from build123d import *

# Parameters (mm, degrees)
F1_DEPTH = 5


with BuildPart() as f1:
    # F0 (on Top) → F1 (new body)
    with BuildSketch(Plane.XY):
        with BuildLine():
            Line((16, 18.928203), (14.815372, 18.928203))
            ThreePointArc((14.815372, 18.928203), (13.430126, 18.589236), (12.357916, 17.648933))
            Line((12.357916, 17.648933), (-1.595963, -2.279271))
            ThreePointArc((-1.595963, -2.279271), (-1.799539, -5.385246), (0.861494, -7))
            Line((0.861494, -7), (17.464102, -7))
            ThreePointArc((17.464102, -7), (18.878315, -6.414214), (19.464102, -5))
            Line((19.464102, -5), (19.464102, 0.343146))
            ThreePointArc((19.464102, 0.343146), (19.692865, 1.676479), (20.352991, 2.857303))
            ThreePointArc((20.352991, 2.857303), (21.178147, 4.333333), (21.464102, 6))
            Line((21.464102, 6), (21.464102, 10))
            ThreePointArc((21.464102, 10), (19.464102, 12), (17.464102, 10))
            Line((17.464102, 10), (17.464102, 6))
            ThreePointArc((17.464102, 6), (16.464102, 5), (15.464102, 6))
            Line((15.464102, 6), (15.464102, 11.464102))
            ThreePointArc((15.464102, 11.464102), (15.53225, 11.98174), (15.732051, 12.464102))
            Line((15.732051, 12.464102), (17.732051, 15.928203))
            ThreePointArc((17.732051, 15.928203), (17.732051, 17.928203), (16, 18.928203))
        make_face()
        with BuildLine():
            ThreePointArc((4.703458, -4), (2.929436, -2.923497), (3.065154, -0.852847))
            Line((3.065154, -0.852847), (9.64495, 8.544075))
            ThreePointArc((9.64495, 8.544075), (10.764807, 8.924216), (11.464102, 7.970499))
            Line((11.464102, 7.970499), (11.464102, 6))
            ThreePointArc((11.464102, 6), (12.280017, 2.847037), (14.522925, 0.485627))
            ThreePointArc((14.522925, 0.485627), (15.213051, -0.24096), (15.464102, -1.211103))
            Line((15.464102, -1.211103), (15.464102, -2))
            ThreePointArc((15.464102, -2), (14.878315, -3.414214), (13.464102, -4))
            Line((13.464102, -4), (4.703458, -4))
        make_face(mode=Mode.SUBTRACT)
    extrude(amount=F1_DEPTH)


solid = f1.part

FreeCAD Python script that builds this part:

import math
import FreeCAD as App
import Part
import Sketcher
Q = App.Units.Quantity

doc = App.newDocument("Part")
body = doc.addObject("PartDesign::Body", "Body")

# Sketch on XY plane
sketch1 = body.newObject("Sketcher::SketchObject", "Sketch")
sketch1.AttachmentSupport = (doc.getObject("XY_Plane"), [""])
sketch1.MapMode = "FlatFace"
sketch1.addGeometry(Part.LineSegment(App.Vector(16, 18.9, 0), App.Vector(14.8, 18.9, 0)), False)
sketch1.addGeometry(Part.ArcOfCircle(Part.Circle(App.Vector(14.8, 15.9, 0), App.Vector(0, 0, 1), 3), math.radians(90), math.radians(145)), False)
sketch1.addGeometry(Part.LineSegment(App.Vector(12.4, 17.6, 0), App.Vector(-1.6, -2.3, 0)), False)
sketch1.addGeometry(Part.ArcOfCircle(Part.Circle(App.Vector(0.9, -4, 0), App.Vector(0, 0, 1), 3), math.radians(145), math.radians(270)), False)
sketch1.addGeometry(Part.LineSegment(App.Vector(0.9, -7, 0), App.Vector(17.5, -7, 0)), False)
sketch1.addGeometry(Part.ArcOfCircle(Part.Circle(App.Vector(17.5, -5, 0), App.Vector(0, 0, 1), 2), math.radians(-90), math.radians(0)), False)
sketch1.addGeometry(Part.LineSegment(App.Vector(19.5, -5, 0), App.Vector(19.5, 0.3, 0)), False)
sketch1.addGeometry(Part.ArcOfCircle(Part.Circle(App.Vector(23.5, 0.3, 0), App.Vector(0, 0, 1), 4), math.radians(141), math.radians(180)), False)
sketch1.addGeometry(Part.ArcOfCircle(Part.Circle(App.Vector(16.5, 6, 0), App.Vector(0, 0, 1), 5), math.radians(-39), math.radians(0)), False)
sketch1.addGeometry(Part.LineSegment(App.Vector(21.5, 6, 0), App.Vector(21.5, 10, 0)), False)
sketch1.addGeometry(Part.ArcOfCircle(Part.Circle(App.Vector(19.5, 10, 0), App.Vector(0, 0, 1), 2), math.radians(0), math.radians(180)), False)
sketch1.addGeometry(Part.LineSegment(App.Vector(17.5, 10, 0), App.Vector(17.5, 6, 0)), False)
sketch1.addGeometry(Part.ArcOfCircle(Part.Circle(App.Vector(16.5, 6, 0), App.Vector(0, 0, 1), 1), math.radians(180), math.radians(360)), False)
sketch1.addGeometry(Part.LineSegment(App.Vector(15.5, 6, 0), App.Vector(15.5, 11.5, 0)), False)
sketch1.addGeometry(Part.ArcOfCircle(Part.Circle(App.Vector(17.5, 11.5, 0), App.Vector(0, 0, 1), 2), math.radians(150), math.radians(180)), False)
sketch1.addGeometry(Part.LineSegment(App.Vector(15.7, 12.5, 0), App.Vector(17.7, 15.9, 0)), False)
sketch1.addGeometry(Part.ArcOfCircle(Part.Circle(App.Vector(16, 16.9, 0), App.Vector(0, 0, 1), 2), math.radians(-30), math.radians(90)), False)
sketch1.addGeometry(Part.LineSegment(App.Vector(13.5, -4, 0), App.Vector(4.7, -4, 0)), False)
sketch1.addGeometry(Part.ArcOfCircle(Part.Circle(App.Vector(4.7, -2, 0), App.Vector(0, 0, 1), 2), math.radians(145), math.radians(270)), False)
sketch1.addGeometry(Part.LineSegment(App.Vector(3.1, -0.9, 0), App.Vector(9.6, 8.5, 0)), False)
sketch1.addGeometry(Part.ArcOfCircle(Part.Circle(App.Vector(10.5, 8, 0), App.Vector(0, 0, 1), 1), math.radians(0), math.radians(145)), False)
sketch1.addGeometry(Part.LineSegment(App.Vector(11.5, 8, 0), App.Vector(11.5, 6, 0)), False)
sketch1.addGeometry(Part.ArcOfCircle(Part.Circle(App.Vector(18, 6, 0), App.Vector(0, 0, 1), 6.5), math.radians(-180), math.radians(-122)), False)
sketch1.addGeometry(Part.ArcOfCircle(Part.Circle(App.Vector(13.5, -1.2, 0), App.Vector(0, 0, 1), 2), math.radians(0), math.radians(58)), False)
sketch1.addGeometry(Part.LineSegment(App.Vector(15.5, -1.2, 0), App.Vector(15.5, -2, 0)), False)
sketch1.addGeometry(Part.ArcOfCircle(Part.Circle(App.Vector(13.5, -2, 0), App.Vector(0, 0, 1), 2), math.radians(-90), math.radians(0)), False)
sketch1.addConstraint(Sketcher.Constraint("Tangent", 0, 2, 1, 1))
sketch1.addConstraint(Sketcher.Constraint("Tangent", 1, 2, 2, 1))
sketch1.addConstraint(Sketcher.Constraint("Tangent", 2, 2, 3, 1))
sketch1.addConstraint(Sketcher.Constraint("Tangent", 3, 2, 4, 1))
sketch1.addConstraint(Sketcher.Constraint("Tangent", 4, 2, 5, 1))
sketch1.addConstraint(Sketcher.Constraint("Tangent", 5, 2, 6, 1))
sketch1.addConstraint(Sketcher.Constraint("Tangent", 6, 2, 7, 2))
sketch1.addConstraint(Sketcher.Constraint("Tangent", 7, 1, 8, 1))
sketch1.addConstraint(Sketcher.Constraint("Tangent", 8, 2, 9, 1))
sketch1.addConstraint(Sketcher.Constraint("Tangent", 9, 2, 10, 1))
sketch1.addConstraint(Sketcher.Constraint("Tangent", 10, 2, 11, 1))
sketch1.addConstraint(Sketcher.Constraint("Tangent", 11, 2, 12, 2))
sketch1.addConstraint(Sketcher.Constraint("Tangent", 12, 1, 13, 1))
sketch1.addConstraint(Sketcher.Constraint("Tangent", 13, 2, 14, 2))
sketch1.addConstraint(Sketcher.Constraint("Tangent", 14, 1, 15, 1))
sketch1.addConstraint(Sketcher.Constraint("Tangent", 15, 2, 16, 1))
sketch1.addConstraint(Sketcher.Constraint("Tangent", 16, 2, 0, 1))
sketch1.addConstraint(Sketcher.Constraint("Tangent", 17, 2, 18, 2))
sketch1.addConstraint(Sketcher.Constraint("Tangent", 18, 1, 19, 1))
sketch1.addConstraint(Sketcher.Constraint("Tangent", 19, 2, 20, 2))
sketch1.addConstraint(Sketcher.Constraint("Tangent", 20, 1, 21, 1))
sketch1.addConstraint(Sketcher.Constraint("Tangent", 21, 2, 22, 1))
sketch1.addConstraint(Sketcher.Constraint("Tangent", 22, 2, 23, 2))
sketch1.addConstraint(Sketcher.Constraint("Tangent", 23, 1, 24, 1))
sketch1.addConstraint(Sketcher.Constraint("Tangent", 24, 2, 25, 2))
sketch1.addConstraint(Sketcher.Constraint("Tangent", 25, 1, 17, 1))
sketch1.addConstraint(Sketcher.Constraint("Horizontal", 0))
sketch1.addConstraint(Sketcher.Constraint("Horizontal", 4))
sketch1.addConstraint(Sketcher.Constraint("Vertical", 6))
sketch1.addConstraint(Sketcher.Constraint("Vertical", 9))
sketch1.addConstraint(Sketcher.Constraint("Vertical", 11))
sketch1.addConstraint(Sketcher.Constraint("Vertical", 13))
sketch1.addConstraint(Sketcher.Constraint("Horizontal", 17))
sketch1.addConstraint(Sketcher.Constraint("Vertical", 21))
sketch1.addConstraint(Sketcher.Constraint("Vertical", 24))
sketch1.addConstraint(Sketcher.Constraint("Coincident", 12, 3, 8, 3))
sketch1.addConstraint(Sketcher.Constraint("Equal", 5, 10))
sketch1.addConstraint(Sketcher.Constraint("Equal", 10, 16))
sketch1.addConstraint(Sketcher.Constraint("Equal", 16, 18))
sketch1.addConstraint(Sketcher.Constraint("Equal", 12, 20))
sketch1.addConstraint(Sketcher.Constraint("Equal", 18, 23))
sketch1.addConstraint(Sketcher.Constraint("Equal", 23, 25))
sketch1.addConstraint(Sketcher.Constraint("Parallel", 2, 19))
sketch1.addConstraint(Sketcher.Constraint("Horizontal", 12, 3, 22, 3))
sketch1.addConstraint(Sketcher.Constraint("Horizontal", 3, 3, 17, 2))
sketch1.addConstraint(Sketcher.Constraint("Vertical", 10, 3, 5, 2))
sketch1.addConstraint(Sketcher.Constraint("Vertical", 13, 2, 23, 1))
sketch1.addConstraint(Sketcher.Constraint("Radius", 3, Q("3 mm")))
sketch1.addConstraint(Sketcher.Constraint("Radius", 5, Q("2 mm")))
sketch1.addConstraint(Sketcher.Constraint("Radius", 12, Q("1 mm")))
sketch1.addConstraint(Sketcher.Constraint("DistanceY", 9, 1, 9, 2, Q("4 mm")))
sketch1.addConstraint(Sketcher.Constraint("Angle", 2, Q("-125.000001 deg")))
sketch1.addConstraint(Sketcher.Constraint("Angle", 15, Q("59.999996 deg")))
sketch1.addConstraint(Sketcher.Constraint("Distance", 15, Q("3.999999 mm")))
sketch1.addConstraint(Sketcher.Constraint("DistanceY", 3, 3, -1, 1, Q("4 mm")))
sketch1.addConstraint(Sketcher.Constraint("DistanceY", -1, 1, 8, 3, Q("6.000001 mm")))
sketch1.addConstraint(Sketcher.Constraint("DistanceX", -1, 1, 16, 3, Q("16 mm")))
sketch1.addConstraint(Sketcher.Constraint("DistanceX", 20, 3, 12, 3, Q("6 mm")))
sketch1.addConstraint(Sketcher.Constraint("DistanceY", 13, 2, 14, 1, Q("1 mm")))
sketch1.addConstraint(Sketcher.Constraint("DistanceY", 21, 2, 21, 1, Q("1.970499 mm")))
sketch1.addConstraint(Sketcher.Constraint("Radius", 1, Q("2.999997 mm")))
sketch1.addConstraint(Sketcher.Constraint("Radius", 7, Q("3.999986 mm")))
sketch1.addConstraint(Sketcher.Constraint("Radius", 22, Q("6.500004 mm")))
sketch1.addConstraint(Sketcher.Constraint("DistanceX", 4, 1, 4, 2, Q("16.602608 mm")))
sketch1.addConstraint(Sketcher.Constraint("DistanceX", 0, 2, 0, 1, Q("1.184628 mm")))
pad1 = body.newObject("PartDesign::Pad", "Pad")
pad1.Profile = sketch1
pad1.Length = 5

doc.recompute()
